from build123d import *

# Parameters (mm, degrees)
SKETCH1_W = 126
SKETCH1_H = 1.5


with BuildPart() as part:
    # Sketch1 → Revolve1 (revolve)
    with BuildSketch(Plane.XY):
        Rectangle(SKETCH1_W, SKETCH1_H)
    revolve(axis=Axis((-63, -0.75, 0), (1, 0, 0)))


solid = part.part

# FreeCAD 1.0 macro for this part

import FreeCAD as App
import Part
import Sketcher
from FreeCAD import Vector

doc = App.newDocument("Part")
body = doc.addObject("PartDesign::Body", "Body")

# Sketch on XY plane
sketch1 = body.newObject("Sketcher::SketchObject", "Sketch")
sketch1.AttachmentSupport = (doc.getObject("XY_Plane"), [""])
sketch1.MapMode = "FlatFace"
sketch1.addGeometry(Part.LineSegment(Vector(-63, 0.8, 0), Vector(-63, -0.8, 0)), False)
sketch1.addGeometry(Part.LineSegment(Vector(-63, -0.8, 0), Vector(63, -0.8, 0)), False)
sketch1.addGeometry(Part.LineSegment(Vector(63, -0.8, 0), Vector(63, 0.8, 0)), False)
sketch1.addGeometry(Part.LineSegment(Vector(63, 0.8, 0), Vector(-63, 0.8, 0)), False)
sketch1.addGeometry(Part.LineSegment(Vector(-63, -0.8, 0), Vector(63, -0.8, 0)), True)  # axis
sketch1.addConstraint(Sketcher.Constraint("Coincident", 0, 2, 1, 1))
sketch1.addConstraint(Sketcher.Constraint("Coincident", 1, 2, 2, 1))
sketch1.addConstraint(Sketcher.Constraint("Coincident", 2, 2, 3, 1))
sketch1.addConstraint(Sketcher.Constraint("Coincident", 3, 2, 0, 1))
sketch1.addConstraint(Sketcher.Constraint("Vertical", 0))
sketch1.addConstraint(Sketcher.Constraint("Horizontal", 1))
sketch1.addConstraint(Sketcher.Constraint("Vertical", 2))
sketch1.addConstraint(Sketcher.Constraint("Horizontal", 3))
sketch1.addConstraint(Sketcher.Constraint("Horizontal", 4))
sketch1.addConstraint(Sketcher.Constraint("Coincident", 4, 1, 0, 2))
sketch1.addConstraint(Sketcher.Constraint("Symmetric", 0, 2, 2, 2, -1, 1))
sketch1.addConstraint(Sketcher.Constraint("Vertical", 2, 2, 4, 2))
sketch1.addConstraint(Sketcher.Constraint("DistanceX", 1, 1, 1, 2, 126.0))
sketch1.addConstraint(Sketcher.Constraint("DistanceY", 0, 2, 0, 1, 1.5))
revolution = body.newObject("PartDesign::Revolution", "Revolution")
revolution.Profile = sketch1
revolution.ReferenceAxis = (sketch1, ["Axis0"])
revolution.Angle = 360

doc.recompute()
